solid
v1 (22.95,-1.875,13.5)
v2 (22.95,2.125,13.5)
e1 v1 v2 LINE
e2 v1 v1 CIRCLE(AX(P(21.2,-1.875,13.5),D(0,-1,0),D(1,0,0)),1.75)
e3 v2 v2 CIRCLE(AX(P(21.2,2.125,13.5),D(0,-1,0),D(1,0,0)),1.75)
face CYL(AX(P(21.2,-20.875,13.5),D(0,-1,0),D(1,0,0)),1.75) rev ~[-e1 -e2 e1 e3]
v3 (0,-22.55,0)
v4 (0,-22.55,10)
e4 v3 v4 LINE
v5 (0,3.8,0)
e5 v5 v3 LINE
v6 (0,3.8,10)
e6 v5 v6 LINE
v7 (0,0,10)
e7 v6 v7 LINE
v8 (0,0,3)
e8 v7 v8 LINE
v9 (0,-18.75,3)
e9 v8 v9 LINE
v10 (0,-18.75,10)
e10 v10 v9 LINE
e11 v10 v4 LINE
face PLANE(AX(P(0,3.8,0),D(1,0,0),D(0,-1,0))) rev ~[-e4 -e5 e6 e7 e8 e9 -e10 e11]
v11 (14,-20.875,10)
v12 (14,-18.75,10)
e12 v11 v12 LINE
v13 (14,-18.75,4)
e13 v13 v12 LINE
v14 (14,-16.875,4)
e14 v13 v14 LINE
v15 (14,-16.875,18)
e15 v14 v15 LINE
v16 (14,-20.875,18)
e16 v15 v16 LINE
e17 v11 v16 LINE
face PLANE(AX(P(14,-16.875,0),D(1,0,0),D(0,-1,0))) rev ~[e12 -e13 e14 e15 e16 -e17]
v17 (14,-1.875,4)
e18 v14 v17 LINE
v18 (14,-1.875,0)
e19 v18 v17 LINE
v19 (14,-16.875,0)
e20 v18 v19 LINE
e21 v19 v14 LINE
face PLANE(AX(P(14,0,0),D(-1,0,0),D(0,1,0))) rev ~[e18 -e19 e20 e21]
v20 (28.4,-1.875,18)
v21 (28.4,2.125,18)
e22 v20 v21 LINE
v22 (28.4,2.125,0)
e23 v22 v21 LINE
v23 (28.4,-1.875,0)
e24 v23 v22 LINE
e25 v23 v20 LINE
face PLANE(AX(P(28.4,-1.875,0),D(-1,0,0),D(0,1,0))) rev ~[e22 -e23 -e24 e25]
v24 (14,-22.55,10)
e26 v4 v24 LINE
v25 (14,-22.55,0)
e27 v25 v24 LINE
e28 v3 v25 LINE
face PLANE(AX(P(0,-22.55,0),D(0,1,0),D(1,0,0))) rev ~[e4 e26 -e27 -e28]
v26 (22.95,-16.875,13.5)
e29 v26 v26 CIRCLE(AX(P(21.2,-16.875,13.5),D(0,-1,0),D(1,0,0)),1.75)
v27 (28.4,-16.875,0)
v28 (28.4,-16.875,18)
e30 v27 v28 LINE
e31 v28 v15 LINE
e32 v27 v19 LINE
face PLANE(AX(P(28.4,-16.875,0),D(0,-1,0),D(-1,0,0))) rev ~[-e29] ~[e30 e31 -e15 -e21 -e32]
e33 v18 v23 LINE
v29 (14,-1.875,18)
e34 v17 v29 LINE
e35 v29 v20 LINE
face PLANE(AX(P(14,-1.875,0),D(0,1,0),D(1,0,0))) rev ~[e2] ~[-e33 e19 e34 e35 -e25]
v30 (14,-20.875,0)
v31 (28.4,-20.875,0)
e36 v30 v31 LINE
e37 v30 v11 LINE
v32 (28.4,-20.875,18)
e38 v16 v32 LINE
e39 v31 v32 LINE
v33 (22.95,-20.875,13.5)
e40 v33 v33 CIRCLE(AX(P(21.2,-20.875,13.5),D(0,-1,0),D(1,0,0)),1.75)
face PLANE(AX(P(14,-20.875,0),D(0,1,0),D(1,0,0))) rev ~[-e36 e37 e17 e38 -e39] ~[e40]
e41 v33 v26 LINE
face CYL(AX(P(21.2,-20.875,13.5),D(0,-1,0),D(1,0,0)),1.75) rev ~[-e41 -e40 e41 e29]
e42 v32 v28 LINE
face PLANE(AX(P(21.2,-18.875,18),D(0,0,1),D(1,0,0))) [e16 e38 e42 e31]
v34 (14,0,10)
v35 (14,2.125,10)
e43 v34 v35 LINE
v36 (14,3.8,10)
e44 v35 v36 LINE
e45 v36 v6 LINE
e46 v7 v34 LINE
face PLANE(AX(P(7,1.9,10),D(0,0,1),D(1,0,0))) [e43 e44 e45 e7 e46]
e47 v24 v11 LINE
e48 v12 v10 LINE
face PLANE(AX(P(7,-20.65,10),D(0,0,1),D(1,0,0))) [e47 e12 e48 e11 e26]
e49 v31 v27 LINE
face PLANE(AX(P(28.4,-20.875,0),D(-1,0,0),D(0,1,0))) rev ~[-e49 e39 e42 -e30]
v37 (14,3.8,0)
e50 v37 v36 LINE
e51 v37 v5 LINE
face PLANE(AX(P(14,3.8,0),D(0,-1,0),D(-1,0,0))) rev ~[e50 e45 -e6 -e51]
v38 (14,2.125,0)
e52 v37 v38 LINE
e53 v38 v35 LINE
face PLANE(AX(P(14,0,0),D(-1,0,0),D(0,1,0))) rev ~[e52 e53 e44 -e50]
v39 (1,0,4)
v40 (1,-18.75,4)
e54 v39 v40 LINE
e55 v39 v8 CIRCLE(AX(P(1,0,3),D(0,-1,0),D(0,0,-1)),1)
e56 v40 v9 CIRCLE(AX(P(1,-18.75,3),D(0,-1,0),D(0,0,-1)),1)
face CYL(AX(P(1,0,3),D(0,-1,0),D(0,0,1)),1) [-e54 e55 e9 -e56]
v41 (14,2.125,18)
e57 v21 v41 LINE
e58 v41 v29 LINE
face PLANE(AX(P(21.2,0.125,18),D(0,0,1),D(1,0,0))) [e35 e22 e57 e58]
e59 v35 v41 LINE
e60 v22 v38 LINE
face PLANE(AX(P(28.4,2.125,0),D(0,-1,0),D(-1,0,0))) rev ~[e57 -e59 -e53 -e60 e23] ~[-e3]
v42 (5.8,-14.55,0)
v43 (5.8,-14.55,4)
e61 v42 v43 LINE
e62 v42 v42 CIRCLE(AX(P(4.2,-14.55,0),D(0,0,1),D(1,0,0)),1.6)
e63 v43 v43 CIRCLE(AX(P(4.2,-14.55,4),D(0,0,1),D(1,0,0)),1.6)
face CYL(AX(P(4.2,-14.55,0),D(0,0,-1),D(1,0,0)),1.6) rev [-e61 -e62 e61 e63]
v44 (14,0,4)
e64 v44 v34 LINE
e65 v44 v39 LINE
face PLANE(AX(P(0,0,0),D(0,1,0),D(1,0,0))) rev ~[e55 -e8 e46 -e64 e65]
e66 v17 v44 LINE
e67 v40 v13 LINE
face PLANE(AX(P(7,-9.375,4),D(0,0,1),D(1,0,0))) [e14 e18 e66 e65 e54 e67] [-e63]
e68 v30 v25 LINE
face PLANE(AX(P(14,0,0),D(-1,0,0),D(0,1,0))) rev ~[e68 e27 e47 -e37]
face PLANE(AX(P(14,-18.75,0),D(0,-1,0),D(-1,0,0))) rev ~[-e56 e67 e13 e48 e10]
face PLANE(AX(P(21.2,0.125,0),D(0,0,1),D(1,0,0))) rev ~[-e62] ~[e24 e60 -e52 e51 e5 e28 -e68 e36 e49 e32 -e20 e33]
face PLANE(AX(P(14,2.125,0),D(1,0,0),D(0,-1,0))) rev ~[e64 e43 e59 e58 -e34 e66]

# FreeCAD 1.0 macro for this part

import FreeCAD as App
import Part
import Sketcher
Q = App.Units.Quantity


def edges_at(feature, points):
    """Names of the edges that pass closest to the given points."""
    edges = feature.Shape.Edges
    near = lambda p: min(range(len(edges)), key=lambda i: edges[i].distToShape(Part.Vertex(*p))[0])
    return sorted({f"Edge{near(p) + 1}" for p in points})


def add_polygon(sketch, points):
    """Adds a closed chain of lines whose ends are joined by coincident constraints."""
    first, n = sketch.GeometryCount, len(points)
    for a, b in zip(points, points[1:] + points[:1]):
        sketch.addGeometry(Part.LineSegment(App.Vector(*a, 0), App.Vector(*b, 0)), False)
    for i in range(n):
        sketch.addConstraint(Sketcher.Constraint("Coincident", first + i, 2, first + (i + 1) % n, 1))

doc = App.newDocument("Part")
body = doc.addObject("PartDesign::Body", "Body")

# Sketch on XY plane
sketch1 = doc.addObject("Sketcher::SketchObject", "Sketch")
body.addObject(sketch1)
sketch1.AttachmentSupport = (doc.XY_Plane, [""])
sketch1.MapMode = "FlatFace"
add_polygon(sketch1, [(14, 0), (0, 0), (0, -18.75), (14, -18.75)])  # lines 0-3
sketch1.addGeometry(Part.Circle(App.Vector(4.2, -14.55, 0), App.Vector(0, 0, 1), 1.6), False)  # 4
sketch1.addConstraint(Sketcher.Constraint("Horizontal", 0))
sketch1.addConstraint(Sketcher.Constraint("Vertical", 1))
sketch1.addConstraint(Sketcher.Constraint("Horizontal", 2))
sketch1.addConstraint(Sketcher.Constraint("Vertical", 3))
sketch1.addConstraint(Sketcher.Constraint("Coincident", 0, 2, -1, 1))
sketch1.addConstraint(Sketcher.Constraint("Diameter", 4, Q("3.2 mm")))
sketch1.addConstraint(Sketcher.Constraint("DistanceX", 0, 2, 0, 1, Q("14 mm")))
sketch1.addConstraint(Sketcher.Constraint("DistanceY", 1, 2, 1, 1, Q("18.75 mm")))
sketch1.addConstraint(Sketcher.Constraint("DistanceX", -1, 1, 4, 3, Q("4.2 mm")))
sketch1.addConstraint(Sketcher.Constraint("DistanceY", 1, 2, 4, 3, Q("4.2 mm")))
pad1 = doc.addObject("PartDesign::Pad", "Pad")
body.addObject(pad1)
pad1.Profile = sketch1
pad1.Length = 4

# Sketch on XY plane
sketch2 = doc.addObject("Sketcher::SketchObject", "Sketch001")
body.addObject(sketch2)
sketch2.AttachmentSupport = (doc.XY_Plane, [""])
sketch2.MapMode = "FlatFace"
add_polygon(sketch2, [(0, 3.8), (0, 0), (14, 0), (14, 3.8)])  # lines 0-3
add_polygon(sketch2, [(14, -18.75), (0, -18.75), (0, -22.55), (14, -22.55)])  # lines 4-7
sketch2.addConstraint(Sketcher.Constraint("Vertical", 0))
sketch2.addConstraint(Sketcher.Constraint("Horizontal", 1))
sketch2.addConstraint(Sketcher.Constraint("Vertical", 2))
sketch2.addConstraint(Sketcher.Constraint("Horizontal", 3))
sketch2.addConstraint(Sketcher.Constraint("Horizontal", 4))
sketch2.addConstraint(Sketcher.Constraint("Vertical", 5))
sketch2.addConstraint(Sketcher.Constraint("Horizontal", 6))
sketch2.addConstraint(Sketcher.Constraint("Vertical", 7))
sketch2.addConstraint(Sketcher.Constraint("Coincident", 0, 2, -1, 1))
sketch2.addConstraint(Sketcher.Constraint("PointOnObject", 4, 2, -2))
sketch2.addConstraint(Sketcher.Constraint("Vertical", 2, 2, 6, 2))
sketch2.addConstraint(Sketcher.Constraint("Equal", 2, 5))
sketch2.addConstraint(Sketcher.Constraint("DistanceX", 1, 1, 1, 2, Q("14 mm")))
sketch2.addConstraint(Sketcher.Constraint("DistanceY", 0, 2, 0, 1, Q("3.8 mm")))
sketch2.addConstraint(Sketcher.Constraint("DistanceY", 4, 2, -1, 1, Q("18.75 mm")))
pad2 = doc.addObject("PartDesign::Pad", "Pad001")
body.addObject(pad2)
pad2.Profile = sketch2
pad2.Length = 10

# Sketch on XY plane
sketch3 = doc.addObject("Sketcher::SketchObject", "Sketch002")
body.addObject(sketch3)
sketch3.AttachmentSupport = (doc.XY_Plane, [""])
sketch3.MapMode = "FlatFace"
add_polygon(sketch3, [(14, 2.125), (14, -1.875), (28.4, -1.875), (28.4, 2.125)])  # lines 0-3
add_polygon(sketch3, [(14, -16.875), (14, -20.875), (28.4, -20.875), (28.4, -16.875)])  # lines 4-7
sketch3.addConstraint(Sketcher.Constraint("Vertical", 0))
sketch3.addConstraint(Sketcher.Constraint("Horizontal", 1))
sketch3.addConstraint(Sketcher.Constraint("Vertical", 2))
sketch3.addConstraint(Sketcher.Constraint("Horizontal", 3))
sketch3.addConstraint(Sketcher.Constraint("Vertical", 4))
sketch3.addConstraint(Sketcher.Constraint("Horizontal", 5))
sketch3.addConstraint(Sketcher.Constraint("Vertical", 6))
sketch3.addConstraint(Sketcher.Constraint("Horizontal", 7))
sketch3.addConstraint(Sketcher.Constraint("Vertical", 3, 2, 4, 2))
sketch3.addConstraint(Sketcher.Constraint("Vertical", 2, 2, 5, 2))
sketch3.addConstraint(Sketcher.Constraint("Equal", 2, 4))
sketch3.addConstraint(Sketcher.Constraint("DistanceY", 0, 2, 0, 1, Q("4 mm")))
sketch3.addConstraint(Sketcher.Constraint("DistanceX", 1, 1, 1, 2, Q("14.4 mm")))
sketch3.addConstraint(Sketcher.Constraint("DistanceX", -1, 1, 0, 2, Q("14 mm")))
sketch3.addConstraint(Sketcher.Constraint("DistanceY", 4, 2, 0, 2, Q("19 mm")))
sketch3.addConstraint(Sketcher.Constraint("DistanceY", 0, 2, -1, 1, Q("1.875 mm")))
pad3 = doc.addObject("PartDesign::Pad", "Pad002")
body.addObject(pad3)
pad3.Profile = sketch3
pad3.Length = 18

# Sketch on XZ plane
sketch4 = doc.addObject("Sketcher::SketchObject", "Sketch003")
body.addObject(sketch4)
sketch4.AttachmentSupport = (doc.XZ_Plane, [""])
sketch4.MapMode = "FlatFace"
sketch4.AttachmentOffset = App.Placement(App.Vector(0, 0, 20.875), App.Rotation())
sketch4.addGeometry(Part.Circle(App.Vector(21.2, 13.5, 0), App.Vector(0, 0, 1), 1.75), False)
sketch4.addConstraint(Sketcher.Constraint("Diameter", 0, Q("3.5 mm")))
sketch4.addConstraint(Sketcher.Constraint("DistanceX", -1, 1, 0, 3, Q("21.2 mm")))
sketch4.addConstraint(Sketcher.Constraint("DistanceY", -1, 1, 0, 3, Q("13.5 mm")))
pocket1 = doc.addObject("PartDesign::Pocket", "Pocket")
body.addObject(pocket1)
pocket1.Profile = sketch4
pocket1.Type = "ThroughAll"
doc.recompute()

fillet = doc.addObject("PartDesign::Fillet", "Fillet")
body.addObject(fillet)
fillet.Base = (pocket1, edges_at(pocket1, [(0, -9.375, 4)]))
fillet.Radius = 1

doc.recompute()
